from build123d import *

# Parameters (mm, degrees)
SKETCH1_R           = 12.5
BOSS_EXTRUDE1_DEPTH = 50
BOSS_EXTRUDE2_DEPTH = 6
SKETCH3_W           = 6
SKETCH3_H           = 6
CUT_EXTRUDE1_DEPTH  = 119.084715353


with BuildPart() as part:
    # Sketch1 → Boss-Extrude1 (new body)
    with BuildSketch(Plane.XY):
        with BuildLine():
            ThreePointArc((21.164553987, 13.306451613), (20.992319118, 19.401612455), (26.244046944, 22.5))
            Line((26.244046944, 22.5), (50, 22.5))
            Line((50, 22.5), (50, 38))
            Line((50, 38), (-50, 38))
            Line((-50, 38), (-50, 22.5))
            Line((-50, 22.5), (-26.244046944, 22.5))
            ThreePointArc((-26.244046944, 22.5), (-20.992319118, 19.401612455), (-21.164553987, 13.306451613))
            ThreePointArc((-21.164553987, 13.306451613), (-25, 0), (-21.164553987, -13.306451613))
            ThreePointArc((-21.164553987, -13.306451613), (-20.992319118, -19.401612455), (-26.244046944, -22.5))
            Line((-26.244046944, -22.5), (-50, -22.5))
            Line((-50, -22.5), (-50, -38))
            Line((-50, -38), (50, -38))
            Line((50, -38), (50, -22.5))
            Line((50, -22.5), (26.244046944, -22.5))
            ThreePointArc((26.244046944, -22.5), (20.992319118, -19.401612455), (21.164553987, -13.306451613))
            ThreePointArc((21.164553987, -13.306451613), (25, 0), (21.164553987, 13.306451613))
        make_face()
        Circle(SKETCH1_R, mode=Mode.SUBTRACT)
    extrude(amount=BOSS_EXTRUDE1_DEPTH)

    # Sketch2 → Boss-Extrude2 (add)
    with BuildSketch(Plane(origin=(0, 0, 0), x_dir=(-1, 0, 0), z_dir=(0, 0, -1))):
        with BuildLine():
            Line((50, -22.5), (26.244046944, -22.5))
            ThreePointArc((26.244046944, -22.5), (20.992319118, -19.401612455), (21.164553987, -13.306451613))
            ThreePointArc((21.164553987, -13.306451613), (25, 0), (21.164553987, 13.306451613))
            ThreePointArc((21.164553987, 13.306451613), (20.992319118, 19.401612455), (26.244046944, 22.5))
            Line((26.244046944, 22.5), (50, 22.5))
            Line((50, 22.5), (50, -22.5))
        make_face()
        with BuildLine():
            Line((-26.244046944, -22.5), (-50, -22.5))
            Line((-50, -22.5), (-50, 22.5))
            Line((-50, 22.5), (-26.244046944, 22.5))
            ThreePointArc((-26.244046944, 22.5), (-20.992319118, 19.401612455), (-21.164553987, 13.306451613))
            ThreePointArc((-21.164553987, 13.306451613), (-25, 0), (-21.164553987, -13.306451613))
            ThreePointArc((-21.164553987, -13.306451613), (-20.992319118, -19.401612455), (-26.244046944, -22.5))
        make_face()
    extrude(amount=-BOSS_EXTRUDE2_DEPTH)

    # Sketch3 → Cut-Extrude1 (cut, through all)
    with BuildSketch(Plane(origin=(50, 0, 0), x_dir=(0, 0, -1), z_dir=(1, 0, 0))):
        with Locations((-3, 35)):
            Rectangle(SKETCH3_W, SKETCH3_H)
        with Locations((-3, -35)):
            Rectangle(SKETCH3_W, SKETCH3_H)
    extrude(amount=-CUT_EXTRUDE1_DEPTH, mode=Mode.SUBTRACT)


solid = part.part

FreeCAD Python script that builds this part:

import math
import FreeCAD as App
import Part
import Sketcher

V = App.Vector


def add_polygon(sketch, points):
    """Adds a closed chain of lines whose ends are joined by coincident constraints."""
    first, n = sketch.GeometryCount, len(points)
    for a, b in zip(points, points[1:] + points[:1]):
        sketch.addGeometry(Part.LineSegment(App.Vector(*a, 0), App.Vector(*b, 0)), False)
    for i in range(n):
        sketch.addConstraint(Sketcher.Constraint("Coincident", first + i, 2, first + (i + 1) % n, 1))

doc = App.newDocument("Part")
body = doc.addObject("PartDesign::Body", "Body")

# Sketch on XY plane
sketch1 = body.newObject("Sketcher::SketchObject", "Sketch")
sketch1.AttachmentSupport = (doc.getObject("XY_Plane"), [""])
sketch1.MapMode = "FlatFace"
sketch1.addGeometry(Part.ArcOfCircle(Part.Circle(V(26, 16, 0), V(0, 0, 1), 6), math.radians(90), math.radians(212)), False)
sketch1.addGeometry(Part.LineSegment(V(26, 22, 0), V(50, 22, 0)), False)
sketch1.addGeometry(Part.LineSegment(V(50, 22, 0), V(50, 38, 0)), False)
sketch1.addGeometry(Part.LineSegment(V(50, 38, 0), V(-50, 38, 0)), False)
sketch1.addGeometry(Part.LineSegment(V(-50, 38, 0), V(-50, 22, 0)), False)
sketch1.addGeometry(Part.LineSegment(V(-50, 22, 0), V(-26, 22, 0)), False)
sketch1.addGeometry(Part.ArcOfCircle(Part.Circle(V(-26, 16, 0), V(0, 0, 1), 6), math.radians(-32), math.radians(90)), False)
sketch1.addGeometry(Part.ArcOfCircle(Part.Circle(V(0, 0, 0), V(0, 0, 1), 25), math.radians(148), math.radians(212)), False)
sketch1.addGeometry(Part.ArcOfCircle(Part.Circle(V(-26, -16, 0), V(0, 0, 1), 6), math.radians(-90), math.radians(32)), False)
sketch1.addGeometry(Part.LineSegment(V(-26, -22, 0), V(-50, -22, 0)), False)
sketch1.addGeometry(Part.LineSegment(V(-50, -22, 0), V(-50, -38, 0)), False)
sketch1.addGeometry(Part.LineSegment(V(-50, -38, 0), V(50, -38, 0)), False)
sketch1.addGeometry(Part.LineSegment(V(50, -38, 0), V(50, -22, 0)), False)
sketch1.addGeometry(Part.LineSegment(V(50, -22, 0), V(26, -22, 0)), False)
sketch1.addGeometry(Part.ArcOfCircle(Part.Circle(V(26, -16, 0), V(0, 0, 1), 6), math.radians(148), math.radians(270)), False)
sketch1.addGeometry(Part.ArcOfCircle(Part.Circle(V(0, 0, 0), V(0, 0, 1), 25), math.radians(-32), math.radians(32)), False)
sketch1.addGeometry(Part.Circle(V(0, 0, 0), V(0, 0, 1), 12), False)
sketch1.addConstraint(Sketcher.Constraint("Tangent", 0, 1, 1, 1))
sketch1.addConstraint(Sketcher.Constraint("Coincident", 1, 2, 2, 1))
sketch1.addConstraint(Sketcher.Constraint("Coincident", 2, 2, 3, 1))
sketch1.addConstraint(Sketcher.Constraint("Coincident", 3, 2, 4, 1))
sketch1.addConstraint(Sketcher.Constraint("Coincident", 4, 2, 5, 1))
sketch1.addConstraint(Sketcher.Constraint("Tangent", 5, 2, 6, 2))
sketch1.addConstraint(Sketcher.Constraint("Tangent", 6, 1, 7, 1))
sketch1.addConstraint(Sketcher.Constraint("Tangent", 7, 2, 8, 2))
sketch1.addConstraint(Sketcher.Constraint("Tangent", 8, 1, 9, 1))
sketch1.addConstraint(Sketcher.Constraint("Coincident", 9, 2, 10, 1))
sketch1.addConstraint(Sketcher.Constraint("Coincident", 10, 2, 11, 1))
sketch1.addConstraint(Sketcher.Constraint("Coincident", 11, 2, 12, 1))
sketch1.addConstraint(Sketcher.Constraint("Coincident", 12, 2, 13, 1))
sketch1.addConstraint(Sketcher.Constraint("Tangent", 13, 2, 14, 2))
sketch1.addConstraint(Sketcher.Constraint("Tangent", 14, 1, 15, 1))
sketch1.addConstraint(Sketcher.Constraint("Tangent", 15, 2, 0, 2))
sketch1.addConstraint(Sketcher.Constraint("Horizontal", 1))
sketch1.addConstraint(Sketcher.Constraint("Vertical", 2))
sketch1.addConstraint(Sketcher.Constraint("Horizontal", 3))
sketch1.addConstraint(Sketcher.Constraint("Vertical", 4))
sketch1.addConstraint(Sketcher.Constraint("Horizontal", 5))
sketch1.addConstraint(Sketcher.Constraint("Horizontal", 9))
sketch1.addConstraint(Sketcher.Constraint("Vertical", 10))
sketch1.addConstraint(Sketcher.Constraint("Horizontal", 11))
sketch1.addConstraint(Sketcher.Constraint("Vertical", 12))
sketch1.addConstraint(Sketcher.Constraint("Horizontal", 13))
sketch1.addConstraint(Sketcher.Constraint("Coincident", 7, 3, -1, 1))
sketch1.addConstraint(Sketcher.Constraint("Coincident", 15, 3, -1, 1))
sketch1.addConstraint(Sketcher.Constraint("Coincident", 16, 3, -1, 1))
sketch1.addConstraint(Sketcher.Constraint("Equal", 0, 6))
sketch1.addConstraint(Sketcher.Constraint("Equal", 6, 8))
sketch1.addConstraint(Sketcher.Constraint("Equal", 8, 14))
sketch1.addConstraint(Sketcher.Constraint("Equal", 7, 15))
sketch1.addConstraint(Sketcher.Constraint("Symmetric", 1, 2, 9, 2, -1, 1))
sketch1.addConstraint(Sketcher.Constraint("Symmetric", 3, 2, 11, 2, -1, 1))
sketch1.addConstraint(Sketcher.Constraint("Symmetric", 1, 2, 4, 2, -2))
sketch1.addConstraint(Sketcher.Constraint("Horizontal", 8, 3, 14, 3))
sketch1.addConstraint(Sketcher.Constraint("Diameter", 16, 25.0))
sketch1.addConstraint(Sketcher.Constraint("Radius", 0, 6.0))
sketch1.addConstraint(Sketcher.Constraint("Radius", 7, 25.0))
sketch1.addConstraint(Sketcher.Constraint("DistanceX", 3, 2, 3, 1, 100.0))
sketch1.addConstraint(Sketcher.Constraint("DistanceY", 2, 1, 2, 2, 15.5))
sketch1.addConstraint(Sketcher.Constraint("DistanceY", -1, 1, 2, 2, 38.0))
pad1 = body.newObject("PartDesign::Pad", "Pad")
pad1.Profile = sketch1
pad1.Length = 50

# Sketch on XY plane
sketch2 = body.newObject("Sketcher::SketchObject", "Sketch001")
sketch2.AttachmentSupport = (doc.getObject("XY_Plane"), [""])
sketch2.MapMode = "FlatFace"
sketch2.addGeometry(Part.LineSegment(V(-26, -22, 0), V(-50, -22, 0)), False)
sketch2.addGeometry(Part.LineSegment(V(-50, -22, 0), V(-50, 22, 0)), False)
sketch2.addGeometry(Part.LineSegment(V(-50, 22, 0), V(-26, 22, 0)), False)
sketch2.addGeometry(Part.ArcOfCircle(Part.Circle(V(-26, 16, 0), V(0, 0, 1), 6), math.radians(-32), math.radians(90)), False)
sketch2.addGeometry(Part.ArcOfCircle(Part.Circle(V(0, 0, 0), V(0, 0, 1), 25), math.radians(148), math.radians(212)), False)
sketch2.addGeometry(Part.ArcOfCircle(Part.Circle(V(-26, -16, 0), V(0, 0, 1), 6), math.radians(-90), math.radians(32)), False)
sketch2.addGeometry(Part.LineSegment(V(50, -22, 0), V(26, -22, 0)), False)
sketch2.addGeometry(Part.ArcOfCircle(Part.Circle(V(26, -16, 0), V(0, 0, 1), 6), math.radians(148), math.radians(270)), False)
sketch2.addGeometry(Part.ArcOfCircle(Part.Circle(V(0, 0, 0), V(0, 0, 1), 25), math.radians(-32), math.radians(32)), False)
sketch2.addGeometry(Part.ArcOfCircle(Part.Circle(V(26, 16, 0), V(0, 0, 1), 6), math.radians(90), math.radians(212)), False)
sketch2.addGeometry(Part.LineSegment(V(26, 22, 0), V(50, 22, 0)), False)
sketch2.addGeometry(Part.LineSegment(V(50, 22, 0), V(50, -22, 0)), False)
sketch2.addConstraint(Sketcher.Constraint("Coincident", 0, 2, 1, 1))
sketch2.addConstraint(Sketcher.Constraint("Coincident", 1, 2, 2, 1))
sketch2.addConstraint(Sketcher.Constraint("Tangent", 2, 2, 3, 2))
sketch2.addConstraint(Sketcher.Constraint("Tangent", 3, 1, 4, 1))
sketch2.addConstraint(Sketcher.Constraint("Tangent", 4, 2, 5, 2))
sketch2.addConstraint(Sketcher.Constraint("Tangent", 5, 1, 0, 1))
sketch2.addConstraint(Sketcher.Constraint("Tangent", 6, 2, 7, 2))
sketch2.addConstraint(Sketcher.Constraint("Tangent", 7, 1, 8, 1))
sketch2.addConstraint(Sketcher.Constraint("Tangent", 8, 2, 9, 2))
sketch2.addConstraint(Sketcher.Constraint("Tangent", 9, 1, 10, 1))
sketch2.addConstraint(Sketcher.Constraint("Coincident", 10, 2, 11, 1))
sketch2.addConstraint(Sketcher.Constraint("Coincident", 11, 2, 6, 1))
sketch2.addConstraint(Sketcher.Constraint("Horizontal", 0))
sketch2.addConstraint(Sketcher.Constraint("Vertical", 1))
sketch2.addConstraint(Sketcher.Constraint("Horizontal", 2))
sketch2.addConstraint(Sketcher.Constraint("Horizontal", 6))
sketch2.addConstraint(Sketcher.Constraint("Horizontal", 10))
sketch2.addConstraint(Sketcher.Constraint("Vertical", 11))
sketch2.addConstraint(Sketcher.Constraint("Coincident", 4, 3, -1, 1))
sketch2.addConstraint(Sketcher.Constraint("Coincident", 8, 3, -1, 1))
sketch2.addConstraint(Sketcher.Constraint("Equal", 3, 5))
sketch2.addConstraint(Sketcher.Constraint("Equal", 5, 7))
sketch2.addConstraint(Sketcher.Constraint("Equal", 4, 8))
sketch2.addConstraint(Sketcher.Constraint("Equal", 7, 9))
sketch2.addConstraint(Sketcher.Constraint("Symmetric", 0, 2, 10, 2, -1, 1))
sketch2.addConstraint(Sketcher.Constraint("Horizontal", 5, 3, 7, 3))
sketch2.addConstraint(Sketcher.Constraint("Horizontal", 3, 3, 9, 3))
sketch2.addConstraint(Sketcher.Constraint("Radius", 3, 6.0))
sketch2.addConstraint(Sketcher.Constraint("Radius", 4, 25.0))
sketch2.addConstraint(Sketcher.Constraint("DistanceY", 1, 1, 1, 2, 45.0))
sketch2.addConstraint(Sketcher.Constraint("DistanceX", 0, 2, -1, 1, 50.0))
pad2 = body.newObject("PartDesign::Pad", "Pad001")
pad2.Profile = sketch2
pad2.Length = 6

# Sketch on YZ plane
sketch3 = body.newObject("Sketcher::SketchObject", "Sketch002")
sketch3.AttachmentSupport = (doc.getObject("YZ_Plane"), [""])
sketch3.MapMode = "FlatFace"
sketch3.AttachmentOffset = App.Placement(V(0, 0, 50), App.Rotation())
add_polygon(sketch3, [(38, 6), (32, 6), (32, 0), (38, 0)])  # lines 0-3
add_polygon(sketch3, [(-32, 6), (-38, 6), (-38, 0), (-32, 0)])  # lines 4-7
sketch3.addConstraint(Sketcher.Constraint("Horizontal", 0))
sketch3.addConstraint(Sketcher.Constraint("Vertical", 1))
sketch3.addConstraint(Sketcher.Constraint("Horizontal", 2))
sketch3.addConstraint(Sketcher.Constraint("Vertical", 3))
sketch3.addConstraint(Sketcher.Constraint("Horizontal", 4))
sketch3.addConstraint(Sketcher.Constraint("Vertical", 5))
sketch3.addConstraint(Sketcher.Constraint("Horizontal", 6))
sketch3.addConstraint(Sketcher.Constraint("Vertical", 7))
sketch3.addConstraint(Sketcher.Constraint("Symmetric", 2, 2, 5, 2, -1, 1))
sketch3.addConstraint(Sketcher.Constraint("Symmetric", 1, 2, 6, 2, -2))
sketch3.addConstraint(Sketcher.Constraint("Horizontal", 3, 2, 4, 2))
sketch3.addConstraint(Sketcher.Constraint("Equal", 6, 1))
sketch3.addConstraint(Sketcher.Constraint("DistanceX", 0, 2, 0, 1, 6.0))
sketch3.addConstraint(Sketcher.Constraint("DistanceX", -1, 1, 0, 2, 32.0))
pocket1 = body.newObject("PartDesign::Pocket", "Pocket")
pocket1.Profile = sketch3
pocket1.Type = "ThroughAll"

doc.recompute()
